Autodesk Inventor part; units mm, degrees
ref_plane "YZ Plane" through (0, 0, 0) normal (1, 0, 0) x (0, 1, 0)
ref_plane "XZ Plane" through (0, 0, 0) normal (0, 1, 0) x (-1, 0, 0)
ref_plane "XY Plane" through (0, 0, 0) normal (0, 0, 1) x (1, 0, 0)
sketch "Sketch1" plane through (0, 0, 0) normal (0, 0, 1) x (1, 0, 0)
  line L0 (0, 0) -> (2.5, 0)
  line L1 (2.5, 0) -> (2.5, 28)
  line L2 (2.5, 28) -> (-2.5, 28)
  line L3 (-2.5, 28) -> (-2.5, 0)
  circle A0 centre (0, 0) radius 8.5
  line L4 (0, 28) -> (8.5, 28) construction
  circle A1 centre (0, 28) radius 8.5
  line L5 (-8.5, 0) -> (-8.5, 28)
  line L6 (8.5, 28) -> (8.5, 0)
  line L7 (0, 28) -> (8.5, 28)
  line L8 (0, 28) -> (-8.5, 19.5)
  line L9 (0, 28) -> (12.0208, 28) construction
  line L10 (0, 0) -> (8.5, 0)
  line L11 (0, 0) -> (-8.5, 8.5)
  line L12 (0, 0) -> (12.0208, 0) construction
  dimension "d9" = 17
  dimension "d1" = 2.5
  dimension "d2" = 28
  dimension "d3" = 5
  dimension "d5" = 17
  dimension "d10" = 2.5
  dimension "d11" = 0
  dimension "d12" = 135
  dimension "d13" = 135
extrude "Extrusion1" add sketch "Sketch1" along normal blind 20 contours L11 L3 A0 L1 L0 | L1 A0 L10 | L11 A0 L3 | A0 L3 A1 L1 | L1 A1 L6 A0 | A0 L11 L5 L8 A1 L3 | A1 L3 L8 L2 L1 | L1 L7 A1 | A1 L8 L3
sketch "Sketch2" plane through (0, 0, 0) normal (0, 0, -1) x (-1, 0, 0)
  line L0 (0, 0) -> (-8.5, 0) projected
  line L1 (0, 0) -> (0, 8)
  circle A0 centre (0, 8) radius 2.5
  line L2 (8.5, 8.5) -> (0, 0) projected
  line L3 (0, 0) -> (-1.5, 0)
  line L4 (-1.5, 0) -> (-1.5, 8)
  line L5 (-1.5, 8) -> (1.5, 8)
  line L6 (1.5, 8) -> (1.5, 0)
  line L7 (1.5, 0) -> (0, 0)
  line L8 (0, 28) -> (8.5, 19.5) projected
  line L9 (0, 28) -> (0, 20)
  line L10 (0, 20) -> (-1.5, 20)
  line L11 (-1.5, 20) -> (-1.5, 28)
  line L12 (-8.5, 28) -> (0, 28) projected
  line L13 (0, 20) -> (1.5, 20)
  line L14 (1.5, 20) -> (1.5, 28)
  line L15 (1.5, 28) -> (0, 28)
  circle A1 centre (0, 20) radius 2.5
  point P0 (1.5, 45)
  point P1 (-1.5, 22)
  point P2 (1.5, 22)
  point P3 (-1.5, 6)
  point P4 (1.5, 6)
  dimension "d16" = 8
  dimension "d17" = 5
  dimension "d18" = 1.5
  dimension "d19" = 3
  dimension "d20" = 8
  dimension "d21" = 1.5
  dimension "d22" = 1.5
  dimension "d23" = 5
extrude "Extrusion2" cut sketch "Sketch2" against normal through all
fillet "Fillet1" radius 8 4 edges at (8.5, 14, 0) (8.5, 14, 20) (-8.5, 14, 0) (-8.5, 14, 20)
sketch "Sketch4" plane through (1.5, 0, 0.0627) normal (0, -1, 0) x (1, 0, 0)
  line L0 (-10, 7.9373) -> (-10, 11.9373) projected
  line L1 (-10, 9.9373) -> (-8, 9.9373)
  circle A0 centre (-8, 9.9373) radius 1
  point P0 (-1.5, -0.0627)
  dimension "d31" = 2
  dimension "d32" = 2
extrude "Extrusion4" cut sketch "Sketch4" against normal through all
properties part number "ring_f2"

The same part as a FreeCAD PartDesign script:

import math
import FreeCAD as App
import Part
import Sketcher
from FreeCAD import Vector


def edges_at(feature, points):
    """Names of the edges that pass closest to the given points."""
    edges = feature.Shape.Edges
    near = lambda p: min(range(len(edges)), key=lambda i: edges[i].distToShape(Part.Vertex(*p))[0])
    return sorted({f"Edge{near(p) + 1}" for p in points})

doc = App.newDocument("Part")
params = doc.addObject("Spreadsheet::Sheet", "Params")
for row, (alias, value) in enumerate([
    ("sketch1_height", "28 mm"),
    ("sketch1_height2", "11 mm"),
    ("pad1_length", "20 mm"),
    ("sketch2_radius", "2.5 mm"),
    ("sketch2_width", "3 mm"),
    ("fillet_radius", "8 mm"),
    ("sketch3_diameter", "2 mm"),
], start=1):
    params.set(f"A{row}", alias)
    params.set(f"B{row}", "=" + value)
    params.setAlias(f"B{row}", alias)

body = doc.addObject("PartDesign::Body", "Body")

sketch1 = body.newObject("Sketcher::SketchObject", "Sketch")
sketch1.AttachmentSupport = (doc.getObject("XY_Plane"), [""])
sketch1.MapMode = "FlatFace"
sketch1.addGeometry(Part.LineSegment(Vector(0, 0, 0), Vector(8, 0, 0)), False)
sketch1.addGeometry(Part.LineSegment(Vector(8, 0, 0), Vector(8, 28, 0)), False)
sketch1.addGeometry(Part.LineSegment(Vector(8, 28, 0), Vector(0, 28, 0)), False)
sketch1.addGeometry(Part.LineSegment(Vector(0, 28, 0), Vector(-8, 20, 0)), False)
sketch1.addGeometry(Part.LineSegment(Vector(-8, 20, 0), Vector(-8, 8, 0)), False)
sketch1.addGeometry(Part.LineSegment(Vector(-8, 8, 0), Vector(0, 0, 0)), False)
sketch1.addConstraint(Sketcher.Constraint("Coincident", 0, 2, 1, 1))
sketch1.addConstraint(Sketcher.Constraint("Coincident", 1, 2, 2, 1))
sketch1.addConstraint(Sketcher.Constraint("Coincident", 2, 2, 3, 1))
sketch1.addConstraint(Sketcher.Constraint("Coincident", 3, 2, 4, 1))
sketch1.addConstraint(Sketcher.Constraint("Coincident", 4, 2, 5, 1))
sketch1.addConstraint(Sketcher.Constraint("Coincident", 5, 2, 0, 1))
sketch1.addConstraint(Sketcher.Constraint("Horizontal", 0))
sketch1.addConstraint(Sketcher.Constraint("Vertical", 1))
sketch1.addConstraint(Sketcher.Constraint("Horizontal", 2))
sketch1.addConstraint(Sketcher.Constraint("Vertical", 4))
sketch1.addConstraint(Sketcher.Constraint("Coincident", 5, 2, -1, 1))
sketch1.addConstraint(Sketcher.Constraint("PointOnObject", 2, 2, -2))
sketch1.addConstraint(Sketcher.Constraint("Perpendicular", 3, 5))
sketch1.addConstraint(Sketcher.Constraint("Equal", 3, 5))
sketch1.addConstraint(Sketcher.Constraint("DistanceY", 1, 1, 1, 2, 28.0))
sketch1.addConstraint(Sketcher.Constraint("DistanceX", 3, 2, 1, 2, 17.0))
sketch1.addConstraint(Sketcher.Constraint("DistanceY", 4, 2, 4, 1, 11.0))
sketch1.setExpression("Constraints[14]", "Params.sketch1_height")
sketch1.setExpression("Constraints[16]", "Params.sketch1_height2")
pad1 = body.newObject("PartDesign::Pad", "Pad")
pad1.Profile = sketch1
pad1.setExpression("Length", "Params.pad1_length")

sketch2 = body.newObject("Sketcher::SketchObject", "Sketch001")
sketch2.AttachmentSupport = (doc.getObject("XY_Plane"), [""])
sketch2.MapMode = "FlatFace"
sketch2.addGeometry(Part.LineSegment(Vector(1.5, 0, 0), Vector(-1.5, 0, 0)), False)
sketch2.addGeometry(Part.LineSegment(Vector(-1.5, 0, 0), Vector(-1.5, 6, 0)), False)
sketch2.addGeometry(Part.ArcOfCircle(Part.Circle(Vector(0, 8, 0), Vector(0, 0, 1), 2.5), math.radians(-53), math.radians(233)), False)
sketch2.addGeometry(Part.LineSegment(Vector(1.5, 6, 0), Vector(1.5, 0, 0)), False)
sketch2.addGeometry(Part.LineSegment(Vector(-1.5, 28, 0), Vector(1.5, 28, 0)), False)
sketch2.addGeometry(Part.LineSegment(Vector(1.5, 28, 0), Vector(1.5, 22, 0)), False)
sketch2.addGeometry(Part.ArcOfCircle(Part.Circle(Vector(0, 20, 0), Vector(0, 0, 1), 2.5), math.radians(127), math.radians(413)), False)
sketch2.addGeometry(Part.LineSegment(Vector(-1.5, 22, 0), Vector(-1.5, 28, 0)), False)
sketch2.addConstraint(Sketcher.Constraint("Coincident", 0, 2, 1, 1))
sketch2.addConstraint(Sketcher.Constraint("Coincident", 1, 2, 2, 2))
sketch2.addConstraint(Sketcher.Constraint("Coincident", 2, 1, 3, 1))
sketch2.addConstraint(Sketcher.Constraint("Coincident", 3, 2, 0, 1))
sketch2.addConstraint(Sketcher.Constraint("Coincident", 4, 2, 5, 1))
sketch2.addConstraint(Sketcher.Constraint("Coincident", 5, 2, 6, 2))
sketch2.addConstraint(Sketcher.Constraint("Coincident", 6, 1, 7, 1))
sketch2.addConstraint(Sketcher.Constraint("Coincident", 7, 2, 4, 1))
sketch2.addConstraint(Sketcher.Constraint("Horizontal", 0))
sketch2.addConstraint(Sketcher.Constraint("Vertical", 1))
sketch2.addConstraint(Sketcher.Constraint("Vertical", 3))
sketch2.addConstraint(Sketcher.Constraint("Horizontal", 4))
sketch2.addConstraint(Sketcher.Constraint("Vertical", 5))
sketch2.addConstraint(Sketcher.Constraint("Vertical", 7))
sketch2.addConstraint(Sketcher.Constraint("Equal", 2, 6))
sketch2.addConstraint(Sketcher.Constraint("Symmetric", 0, 2, 3, 2, -1, 1))
sketch2.addConstraint(Sketcher.Constraint("Symmetric", 5, 2, 6, 1, -2))
sketch2.addConstraint(Sketcher.Constraint("PointOnObject", 2, 3, -2))
sketch2.addConstraint(Sketcher.Constraint("Vertical", 3, 2, 4, 2))
sketch2.addConstraint(Sketcher.Constraint("Equal", 3, 5))
sketch2.addConstraint(Sketcher.Constraint("Radius", 2, 2.5))
sketch2.addConstraint(Sketcher.Constraint("DistanceX", 0, 2, 0, 1, 3.0))
sketch2.addConstraint(Sketcher.Constraint("DistanceY", -1, 1, 2, 3, 8.0))
sketch2.addConstraint(Sketcher.Constraint("DistanceY", -1, 1, 6, 3, 20.0))
sketch2.setExpression("Constraints[20]", "Params.sketch2_radius")
sketch2.setExpression("Constraints[21]", "Params.sketch2_width")
pocket1 = body.newObject("PartDesign::Pocket", "Pocket")
pocket1.Profile = sketch2
pocket1.Type = "ThroughAll"
pocket1.Reversed = True
doc.recompute()

fillet = body.newObject("PartDesign::Fillet", "Fillet")
fillet.Base = (pocket1, edges_at(pocket1, [
    (8.5, 14, 0),
    (8.5, 14, 20),
    (-8.5, 14, 0),
    (-8.5, 14, 20),
]))
fillet.setExpression("Radius", "Params.fillet_radius")

sketch3 = body.newObject("Sketcher::SketchObject", "Sketch002")
sketch3.AttachmentSupport = (doc.getObject("XZ_Plane"), [""])
sketch3.MapMode = "FlatFace"
sketch3.addGeometry(Part.Circle(Vector(-6.5, 10, 0), Vector(0, 0, 1), 1), False)
sketch3.addConstraint(Sketcher.Constraint("Diameter", 0, 2.0))
sketch3.addConstraint(Sketcher.Constraint("DistanceY", -1, 1, 0, 3, 10.0))
sketch3.addConstraint(Sketcher.Constraint("DistanceX", 0, 3, -1, 1, 6.5))
sketch3.setExpression("Constraints[0]", "Params.sketch3_diameter")
pocket2 = body.newObject("PartDesign::Pocket", "Pocket001")
pocket2.Profile = sketch3
pocket2.Type = "ThroughAll"

doc.recompute()
